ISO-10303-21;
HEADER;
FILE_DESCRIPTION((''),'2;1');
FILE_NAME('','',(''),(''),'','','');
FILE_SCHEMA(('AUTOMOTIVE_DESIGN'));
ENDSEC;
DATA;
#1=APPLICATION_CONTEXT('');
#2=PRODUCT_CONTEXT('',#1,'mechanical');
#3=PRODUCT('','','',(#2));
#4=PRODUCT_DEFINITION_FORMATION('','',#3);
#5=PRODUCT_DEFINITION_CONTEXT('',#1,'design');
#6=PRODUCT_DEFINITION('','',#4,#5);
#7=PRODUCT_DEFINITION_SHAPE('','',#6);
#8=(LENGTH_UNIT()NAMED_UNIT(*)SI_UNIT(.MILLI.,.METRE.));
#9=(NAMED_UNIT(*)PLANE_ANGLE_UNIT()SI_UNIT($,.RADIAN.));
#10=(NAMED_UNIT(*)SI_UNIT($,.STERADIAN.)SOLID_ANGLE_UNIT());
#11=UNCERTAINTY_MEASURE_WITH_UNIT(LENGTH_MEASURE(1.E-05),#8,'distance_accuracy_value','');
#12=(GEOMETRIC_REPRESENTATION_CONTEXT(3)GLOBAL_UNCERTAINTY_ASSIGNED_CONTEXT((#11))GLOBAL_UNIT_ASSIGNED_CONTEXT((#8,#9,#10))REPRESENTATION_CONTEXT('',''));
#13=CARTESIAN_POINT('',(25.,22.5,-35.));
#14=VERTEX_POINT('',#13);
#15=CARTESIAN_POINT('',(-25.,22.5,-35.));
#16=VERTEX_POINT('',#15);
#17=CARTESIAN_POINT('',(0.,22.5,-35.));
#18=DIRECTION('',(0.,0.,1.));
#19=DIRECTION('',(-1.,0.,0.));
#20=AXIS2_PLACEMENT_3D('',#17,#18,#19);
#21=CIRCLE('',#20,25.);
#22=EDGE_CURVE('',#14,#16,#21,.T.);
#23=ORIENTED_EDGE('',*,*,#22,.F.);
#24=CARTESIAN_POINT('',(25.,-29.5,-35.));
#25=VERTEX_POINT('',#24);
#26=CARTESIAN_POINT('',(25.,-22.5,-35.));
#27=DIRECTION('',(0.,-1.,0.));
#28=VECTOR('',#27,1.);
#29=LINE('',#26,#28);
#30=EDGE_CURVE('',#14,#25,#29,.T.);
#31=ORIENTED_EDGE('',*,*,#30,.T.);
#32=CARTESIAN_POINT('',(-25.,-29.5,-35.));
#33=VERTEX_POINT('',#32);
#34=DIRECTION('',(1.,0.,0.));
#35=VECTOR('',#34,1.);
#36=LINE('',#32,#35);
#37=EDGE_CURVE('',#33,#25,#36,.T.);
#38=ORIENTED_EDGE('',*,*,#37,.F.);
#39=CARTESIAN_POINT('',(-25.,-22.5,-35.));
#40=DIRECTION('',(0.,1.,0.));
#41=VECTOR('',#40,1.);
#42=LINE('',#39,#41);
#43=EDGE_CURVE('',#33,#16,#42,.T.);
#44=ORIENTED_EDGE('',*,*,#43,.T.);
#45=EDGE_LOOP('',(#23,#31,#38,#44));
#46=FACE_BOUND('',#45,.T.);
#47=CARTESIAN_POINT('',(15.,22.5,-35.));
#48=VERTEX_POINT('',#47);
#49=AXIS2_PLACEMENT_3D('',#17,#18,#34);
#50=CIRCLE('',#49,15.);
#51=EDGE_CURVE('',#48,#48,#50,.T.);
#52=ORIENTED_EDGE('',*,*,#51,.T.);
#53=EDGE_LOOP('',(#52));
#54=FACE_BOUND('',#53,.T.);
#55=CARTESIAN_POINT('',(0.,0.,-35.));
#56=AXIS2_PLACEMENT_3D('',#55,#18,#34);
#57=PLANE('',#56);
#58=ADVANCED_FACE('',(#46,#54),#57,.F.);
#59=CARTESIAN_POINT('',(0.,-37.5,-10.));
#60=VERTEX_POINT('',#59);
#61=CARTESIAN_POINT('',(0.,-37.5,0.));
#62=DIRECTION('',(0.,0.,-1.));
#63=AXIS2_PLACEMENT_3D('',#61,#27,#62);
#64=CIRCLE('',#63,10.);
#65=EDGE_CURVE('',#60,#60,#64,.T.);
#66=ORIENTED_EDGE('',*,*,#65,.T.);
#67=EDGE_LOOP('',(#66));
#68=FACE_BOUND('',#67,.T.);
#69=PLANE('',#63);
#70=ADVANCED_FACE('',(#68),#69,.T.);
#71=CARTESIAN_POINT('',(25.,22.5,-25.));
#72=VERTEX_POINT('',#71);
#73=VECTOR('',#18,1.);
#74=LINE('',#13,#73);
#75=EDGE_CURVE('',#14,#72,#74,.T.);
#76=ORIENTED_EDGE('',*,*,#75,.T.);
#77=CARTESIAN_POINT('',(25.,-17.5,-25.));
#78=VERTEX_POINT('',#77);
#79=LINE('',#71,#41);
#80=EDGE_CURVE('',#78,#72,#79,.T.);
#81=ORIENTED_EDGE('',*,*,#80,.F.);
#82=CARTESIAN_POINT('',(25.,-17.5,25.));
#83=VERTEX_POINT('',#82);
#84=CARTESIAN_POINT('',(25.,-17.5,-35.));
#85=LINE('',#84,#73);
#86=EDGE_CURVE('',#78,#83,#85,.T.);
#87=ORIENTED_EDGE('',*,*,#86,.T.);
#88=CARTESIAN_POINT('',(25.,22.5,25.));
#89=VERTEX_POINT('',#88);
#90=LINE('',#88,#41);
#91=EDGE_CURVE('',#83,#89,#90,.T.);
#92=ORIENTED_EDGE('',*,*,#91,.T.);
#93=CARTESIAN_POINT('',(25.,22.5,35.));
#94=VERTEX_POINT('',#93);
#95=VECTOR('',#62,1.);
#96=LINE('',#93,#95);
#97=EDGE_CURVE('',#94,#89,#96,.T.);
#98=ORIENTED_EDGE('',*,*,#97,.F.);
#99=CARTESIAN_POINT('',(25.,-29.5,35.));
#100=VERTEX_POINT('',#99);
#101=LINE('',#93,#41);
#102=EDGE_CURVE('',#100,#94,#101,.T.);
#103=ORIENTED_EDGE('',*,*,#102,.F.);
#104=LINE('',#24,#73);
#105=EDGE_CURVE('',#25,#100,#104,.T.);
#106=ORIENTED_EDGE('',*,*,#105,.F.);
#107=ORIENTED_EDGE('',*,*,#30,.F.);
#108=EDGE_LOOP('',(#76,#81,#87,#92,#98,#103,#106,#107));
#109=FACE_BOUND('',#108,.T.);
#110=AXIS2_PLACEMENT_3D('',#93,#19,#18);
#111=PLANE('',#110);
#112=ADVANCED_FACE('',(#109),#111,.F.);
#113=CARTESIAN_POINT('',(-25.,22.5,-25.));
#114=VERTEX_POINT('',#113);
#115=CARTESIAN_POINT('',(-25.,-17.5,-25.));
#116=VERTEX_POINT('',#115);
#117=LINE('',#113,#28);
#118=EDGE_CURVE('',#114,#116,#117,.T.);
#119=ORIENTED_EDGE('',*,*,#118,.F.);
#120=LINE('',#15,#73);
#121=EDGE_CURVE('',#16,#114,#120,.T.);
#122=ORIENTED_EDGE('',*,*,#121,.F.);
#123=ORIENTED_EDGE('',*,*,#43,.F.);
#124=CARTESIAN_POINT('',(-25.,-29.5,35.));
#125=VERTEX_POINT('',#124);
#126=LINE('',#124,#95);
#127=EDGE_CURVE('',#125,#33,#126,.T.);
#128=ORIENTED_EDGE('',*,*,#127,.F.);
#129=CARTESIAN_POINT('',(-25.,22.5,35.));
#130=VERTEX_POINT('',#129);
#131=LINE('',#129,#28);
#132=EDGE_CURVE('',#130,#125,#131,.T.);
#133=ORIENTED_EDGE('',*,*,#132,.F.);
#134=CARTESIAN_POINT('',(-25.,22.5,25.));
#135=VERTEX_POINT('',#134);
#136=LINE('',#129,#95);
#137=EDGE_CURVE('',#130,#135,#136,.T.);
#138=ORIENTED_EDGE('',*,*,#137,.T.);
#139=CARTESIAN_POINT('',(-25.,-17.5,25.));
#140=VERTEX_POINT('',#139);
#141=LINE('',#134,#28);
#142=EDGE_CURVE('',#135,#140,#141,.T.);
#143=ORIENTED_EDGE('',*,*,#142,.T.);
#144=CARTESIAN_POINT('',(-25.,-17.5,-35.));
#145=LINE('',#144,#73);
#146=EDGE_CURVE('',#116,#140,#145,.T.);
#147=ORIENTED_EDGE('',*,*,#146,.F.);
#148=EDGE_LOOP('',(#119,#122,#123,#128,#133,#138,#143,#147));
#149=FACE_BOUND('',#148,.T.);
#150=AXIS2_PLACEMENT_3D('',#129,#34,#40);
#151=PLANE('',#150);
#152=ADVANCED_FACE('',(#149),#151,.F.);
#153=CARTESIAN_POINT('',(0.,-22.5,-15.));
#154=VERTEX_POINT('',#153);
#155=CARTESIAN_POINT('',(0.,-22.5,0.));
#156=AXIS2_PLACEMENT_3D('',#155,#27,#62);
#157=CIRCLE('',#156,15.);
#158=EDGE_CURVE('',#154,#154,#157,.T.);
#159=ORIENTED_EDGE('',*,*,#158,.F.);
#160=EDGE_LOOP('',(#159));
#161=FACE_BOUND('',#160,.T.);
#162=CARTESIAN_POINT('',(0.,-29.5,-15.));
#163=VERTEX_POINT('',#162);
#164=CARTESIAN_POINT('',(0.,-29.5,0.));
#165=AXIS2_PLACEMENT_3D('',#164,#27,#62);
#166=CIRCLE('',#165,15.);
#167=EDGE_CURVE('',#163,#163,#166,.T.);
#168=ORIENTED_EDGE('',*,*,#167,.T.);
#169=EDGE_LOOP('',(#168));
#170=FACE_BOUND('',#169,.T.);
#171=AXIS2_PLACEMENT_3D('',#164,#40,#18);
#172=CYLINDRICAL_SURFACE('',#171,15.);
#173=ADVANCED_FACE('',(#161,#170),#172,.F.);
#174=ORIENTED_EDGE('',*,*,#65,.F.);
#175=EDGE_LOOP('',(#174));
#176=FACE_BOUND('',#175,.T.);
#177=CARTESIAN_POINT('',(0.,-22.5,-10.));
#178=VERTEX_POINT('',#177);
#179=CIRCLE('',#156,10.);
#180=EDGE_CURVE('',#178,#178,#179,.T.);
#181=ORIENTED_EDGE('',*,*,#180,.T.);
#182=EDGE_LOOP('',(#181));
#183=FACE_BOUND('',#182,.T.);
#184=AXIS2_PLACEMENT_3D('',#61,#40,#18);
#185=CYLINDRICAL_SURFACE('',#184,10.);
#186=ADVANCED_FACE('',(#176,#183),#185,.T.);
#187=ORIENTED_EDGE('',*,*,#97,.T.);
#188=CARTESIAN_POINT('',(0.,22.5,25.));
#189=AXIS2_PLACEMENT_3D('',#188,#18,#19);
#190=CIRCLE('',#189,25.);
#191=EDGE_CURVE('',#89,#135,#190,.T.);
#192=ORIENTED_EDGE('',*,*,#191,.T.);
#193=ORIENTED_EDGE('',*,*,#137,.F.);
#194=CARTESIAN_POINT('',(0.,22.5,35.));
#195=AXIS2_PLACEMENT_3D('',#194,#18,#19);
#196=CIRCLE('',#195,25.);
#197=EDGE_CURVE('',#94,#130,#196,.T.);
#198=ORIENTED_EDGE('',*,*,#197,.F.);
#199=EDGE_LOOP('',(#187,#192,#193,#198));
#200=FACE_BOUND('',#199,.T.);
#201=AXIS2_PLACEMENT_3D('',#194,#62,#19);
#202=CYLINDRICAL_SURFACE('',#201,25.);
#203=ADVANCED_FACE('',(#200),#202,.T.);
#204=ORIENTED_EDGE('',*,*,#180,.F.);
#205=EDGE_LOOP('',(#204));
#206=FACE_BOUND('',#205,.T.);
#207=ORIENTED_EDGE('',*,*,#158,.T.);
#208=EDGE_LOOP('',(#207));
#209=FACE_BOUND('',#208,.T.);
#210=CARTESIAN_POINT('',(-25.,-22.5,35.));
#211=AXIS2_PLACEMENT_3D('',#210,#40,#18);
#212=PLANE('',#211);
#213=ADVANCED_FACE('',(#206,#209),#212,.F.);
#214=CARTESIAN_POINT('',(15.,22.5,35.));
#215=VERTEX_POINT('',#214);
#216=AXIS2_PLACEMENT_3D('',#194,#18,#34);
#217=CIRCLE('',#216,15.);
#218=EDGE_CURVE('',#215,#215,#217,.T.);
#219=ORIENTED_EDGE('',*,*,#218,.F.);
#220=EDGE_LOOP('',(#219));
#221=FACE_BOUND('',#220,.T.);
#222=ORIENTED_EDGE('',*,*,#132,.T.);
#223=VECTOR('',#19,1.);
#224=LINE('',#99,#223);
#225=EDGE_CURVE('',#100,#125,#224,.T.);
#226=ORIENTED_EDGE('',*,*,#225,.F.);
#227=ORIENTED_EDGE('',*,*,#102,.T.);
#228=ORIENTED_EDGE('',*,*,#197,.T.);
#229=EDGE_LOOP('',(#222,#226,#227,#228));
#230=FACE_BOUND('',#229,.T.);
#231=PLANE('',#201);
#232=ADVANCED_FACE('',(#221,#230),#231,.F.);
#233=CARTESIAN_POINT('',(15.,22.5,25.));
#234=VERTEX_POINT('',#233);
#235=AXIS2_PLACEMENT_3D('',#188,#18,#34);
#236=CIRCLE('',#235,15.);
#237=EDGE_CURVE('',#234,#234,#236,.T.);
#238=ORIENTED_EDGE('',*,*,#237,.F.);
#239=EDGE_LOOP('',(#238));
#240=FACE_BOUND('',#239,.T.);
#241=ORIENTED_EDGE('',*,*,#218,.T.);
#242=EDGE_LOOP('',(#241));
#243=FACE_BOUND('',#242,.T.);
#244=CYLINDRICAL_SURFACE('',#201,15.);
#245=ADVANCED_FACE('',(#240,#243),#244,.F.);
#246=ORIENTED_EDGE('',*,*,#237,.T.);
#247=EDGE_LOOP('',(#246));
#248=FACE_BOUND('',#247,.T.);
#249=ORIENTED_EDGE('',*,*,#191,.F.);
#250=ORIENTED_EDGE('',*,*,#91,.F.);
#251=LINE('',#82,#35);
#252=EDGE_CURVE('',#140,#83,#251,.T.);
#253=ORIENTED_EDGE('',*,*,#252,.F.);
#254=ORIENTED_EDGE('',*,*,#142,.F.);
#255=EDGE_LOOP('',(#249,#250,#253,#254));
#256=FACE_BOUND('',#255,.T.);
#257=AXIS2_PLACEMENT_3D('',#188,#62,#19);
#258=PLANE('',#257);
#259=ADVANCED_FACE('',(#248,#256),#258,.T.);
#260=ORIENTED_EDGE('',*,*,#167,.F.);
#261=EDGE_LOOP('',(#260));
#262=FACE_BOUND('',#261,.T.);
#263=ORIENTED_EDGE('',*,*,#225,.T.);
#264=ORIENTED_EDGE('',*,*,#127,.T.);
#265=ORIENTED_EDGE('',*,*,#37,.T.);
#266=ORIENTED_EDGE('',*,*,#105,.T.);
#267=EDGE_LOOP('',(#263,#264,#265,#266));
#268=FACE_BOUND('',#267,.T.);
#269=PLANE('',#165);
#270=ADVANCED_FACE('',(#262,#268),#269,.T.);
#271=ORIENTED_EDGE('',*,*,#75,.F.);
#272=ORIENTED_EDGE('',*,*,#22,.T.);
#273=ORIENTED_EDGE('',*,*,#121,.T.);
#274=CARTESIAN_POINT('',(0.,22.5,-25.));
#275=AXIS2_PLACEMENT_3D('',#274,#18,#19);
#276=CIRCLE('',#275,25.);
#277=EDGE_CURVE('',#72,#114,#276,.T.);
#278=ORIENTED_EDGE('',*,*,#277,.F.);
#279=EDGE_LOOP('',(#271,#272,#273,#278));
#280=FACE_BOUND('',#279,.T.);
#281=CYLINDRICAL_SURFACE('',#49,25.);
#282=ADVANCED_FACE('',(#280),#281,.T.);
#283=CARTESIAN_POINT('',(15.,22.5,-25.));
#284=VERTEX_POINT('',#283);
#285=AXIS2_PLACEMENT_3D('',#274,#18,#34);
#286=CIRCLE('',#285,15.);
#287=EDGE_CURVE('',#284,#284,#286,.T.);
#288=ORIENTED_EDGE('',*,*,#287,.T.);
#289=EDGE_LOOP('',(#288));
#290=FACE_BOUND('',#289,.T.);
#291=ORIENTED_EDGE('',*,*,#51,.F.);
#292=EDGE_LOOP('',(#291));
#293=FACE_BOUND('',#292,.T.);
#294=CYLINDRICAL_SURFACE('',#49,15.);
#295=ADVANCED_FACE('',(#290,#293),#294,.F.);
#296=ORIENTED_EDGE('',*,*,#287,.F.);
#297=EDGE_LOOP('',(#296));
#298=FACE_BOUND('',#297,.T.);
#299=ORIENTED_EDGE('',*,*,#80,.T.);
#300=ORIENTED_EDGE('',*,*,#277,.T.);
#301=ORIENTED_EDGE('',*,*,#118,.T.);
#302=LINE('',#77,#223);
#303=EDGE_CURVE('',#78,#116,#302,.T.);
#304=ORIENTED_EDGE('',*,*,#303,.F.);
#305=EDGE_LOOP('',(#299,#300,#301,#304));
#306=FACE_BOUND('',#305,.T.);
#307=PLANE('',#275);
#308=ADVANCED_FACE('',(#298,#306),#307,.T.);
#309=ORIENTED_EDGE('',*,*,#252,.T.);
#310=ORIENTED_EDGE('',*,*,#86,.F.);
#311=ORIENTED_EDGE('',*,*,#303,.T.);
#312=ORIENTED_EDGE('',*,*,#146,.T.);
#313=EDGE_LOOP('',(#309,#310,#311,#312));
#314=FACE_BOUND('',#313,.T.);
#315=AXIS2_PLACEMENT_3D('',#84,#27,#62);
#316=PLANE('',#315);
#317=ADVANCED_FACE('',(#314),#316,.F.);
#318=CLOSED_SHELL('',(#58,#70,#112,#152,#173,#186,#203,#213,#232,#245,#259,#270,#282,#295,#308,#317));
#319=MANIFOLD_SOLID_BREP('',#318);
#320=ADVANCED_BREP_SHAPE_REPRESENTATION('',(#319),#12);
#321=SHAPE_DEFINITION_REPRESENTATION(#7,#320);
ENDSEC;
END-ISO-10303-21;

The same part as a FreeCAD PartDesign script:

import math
import FreeCAD as App
import Part
import Sketcher
Q = App.Units.Quantity


def add_polygon(sketch, points):
    """Adds a closed chain of lines whose ends are joined by coincident constraints."""
    first, n = sketch.GeometryCount, len(points)
    for a, b in zip(points, points[1:] + points[:1]):
        sketch.addGeometry(Part.LineSegment(App.Vector(*a, 0), App.Vector(*b, 0)), False)
    for i in range(n):
        sketch.addConstraint(Sketcher.Constraint("Coincident", first + i, 2, first + (i + 1) % n, 1))

doc = App.newDocument("Part")
params = doc.addObject("Spreadsheet::Sheet", "Params")
for row, (alias, value) in enumerate([
    ("sketch1_diameter", "30 mm"),
    ("sketch1_radius", "25 mm"),
    ("sketch1_height", "45 mm"),
    ("pad1_length", "10 mm"),
    ("sketch2_width", "50 mm"),
    ("sketch2_height", "5 mm"),
    ("pad2_length", "60 mm"),
    ("sketch3_diameter", "20 mm"),
    ("pad3_length", "15 mm"),
    ("sketch4_diameter", "30 mm"),
    ("sketch4_width", "50 mm"),
    ("sketch4_height", "70 mm"),
    ("pad4_length", "7 mm"),
], start=1):
    params.set(f"A{row}", alias)
    params.set(f"B{row}", "=" + value)
    params.setAlias(f"B{row}", alias)

body = doc.addObject("PartDesign::Body", "Body")

# Sketch on XY plane
sketch1 = doc.addObject("Sketcher::SketchObject", "Sketch")
body.addObject(sketch1)
sketch1.AttachmentSupport = (doc.XY_Plane, [""])
sketch1.MapMode = "FlatFace"
sketch1.AttachmentOffset = App.Placement(App.Vector(0, 0, 30), App.Rotation())
sketch1.addGeometry(Part.LineSegment(App.Vector(-25, 22, 0), App.Vector(-25, -22, 0)), False)
sketch1.addGeometry(Part.LineSegment(App.Vector(-25, -22, 0), App.Vector(25, -22, 0)), False)
sketch1.addGeometry(Part.LineSegment(App.Vector(25, -22, 0), App.Vector(25, 22, 0)), False)
sketch1.addGeometry(Part.ArcOfCircle(Part.Circle(App.Vector(0, 22, 0), App.Vector(0, 0, 1), 25), math.radians(0), math.radians(180)), False)
sketch1.addGeometry(Part.Circle(App.Vector(0, 22, 0), App.Vector(0, 0, 1), 15), False)
sketch1.addConstraint(Sketcher.Constraint("Coincident", 0, 2, 1, 1))
sketch1.addConstraint(Sketcher.Constraint("Coincident", 1, 2, 2, 1))
sketch1.addConstraint(Sketcher.Constraint("Tangent", 2, 2, 3, 1))
sketch1.addConstraint(Sketcher.Constraint("Tangent", 3, 2, 0, 1))
sketch1.addConstraint(Sketcher.Constraint("Vertical", 0))
sketch1.addConstraint(Sketcher.Constraint("Horizontal", 1))
sketch1.addConstraint(Sketcher.Constraint("Vertical", 2))
sketch1.addConstraint(Sketcher.Constraint("Coincident", 4, 3, 3, 3))
sketch1.addConstraint(Sketcher.Constraint("Symmetric", 0, 2, 2, 2, -1, 1))
sketch1.addConstraint(Sketcher.Constraint("Diameter", 4, Q("30 mm")))
sketch1.addConstraint(Sketcher.Constraint("Radius", 3, Q("25 mm")))
sketch1.addConstraint(Sketcher.Constraint("DistanceY", 0, 2, 0, 1, Q("45 mm")))
sketch1.setExpression("Constraints[9]", "Params.sketch1_diameter")
sketch1.setExpression("Constraints[10]", "Params.sketch1_radius")
sketch1.setExpression("Constraints[11]", "Params.sketch1_height")
pad1 = doc.addObject("PartDesign::Pad", "Pad")
body.addObject(pad1)
pad1.Profile = sketch1
pad1.setExpression("Length", "Params.pad1_length")
pad1.Midplane = True

# Sketch on XY plane
sketch2 = doc.addObject("Sketcher::SketchObject", "Sketch001")
body.addObject(sketch2)
sketch2.AttachmentSupport = (doc.XY_Plane, [""])
sketch2.MapMode = "FlatFace"
sketch2.AttachmentOffset = App.Placement(App.Vector(0, 0, 25), App.Rotation())
add_polygon(sketch2, [(25, -18), (25, -22), (-25, -22), (-25, -18)])  # lines 0-3
sketch2.addConstraint(Sketcher.Constraint("Vertical", 0))
sketch2.addConstraint(Sketcher.Constraint("Horizontal", 1))
sketch2.addConstraint(Sketcher.Constraint("Vertical", 2))
sketch2.addConstraint(Sketcher.Constraint("Horizontal", 3))
sketch2.addConstraint(Sketcher.Constraint("DistanceX", 1, 2, 1, 1, Q("50 mm")))
sketch2.addConstraint(Sketcher.Constraint("DistanceY", 0, 2, 0, 1, Q("5 mm")))
sketch2.addConstraint(Sketcher.Constraint("DistanceX", -1, 1, 0, 2, Q("25 mm")))
sketch2.addConstraint(Sketcher.Constraint("DistanceY", 0, 2, -1, 1, Q("22.5 mm")))
sketch2.setExpression("Constraints[8]", "Params.sketch2_width")
sketch2.setExpression("Constraints[9]", "Params.sketch2_height")
pad2 = doc.addObject("PartDesign::Pad", "Pad001")
body.addObject(pad2)
pad2.Profile = sketch2
pad2.setExpression("Length", "Params.pad2_length")
pad2.Reversed = True
doc.recompute()

mirrored = doc.addObject("PartDesign::Mirrored", "Mirrored")
body.addObject(mirrored)
mirrored.Originals = [pad1]
mirrored.MirrorPlane = (doc.XY_Plane, [""])
body.Tip = mirrored

# Sketch on XZ plane
sketch3 = doc.addObject("Sketcher::SketchObject", "Sketch002")
body.addObject(sketch3)
sketch3.AttachmentSupport = (doc.XZ_Plane, [""])
sketch3.MapMode = "FlatFace"
sketch3.AttachmentOffset = App.Placement(App.Vector(0, 0, 22.5), App.Rotation())
sketch3.addGeometry(Part.Circle(App.Vector(0, 0, 0), App.Vector(0, 0, 1), 10), False)
sketch3.addConstraint(Sketcher.Constraint("Coincident", 0, 3, -1, 1))
sketch3.addConstraint(Sketcher.Constraint("Diameter", 0, Q("20 mm")))
sketch3.setExpression("Constraints[1]", "Params.sketch3_diameter")
pad3 = doc.addObject("PartDesign::Pad", "Pad002")
body.addObject(pad3)
pad3.Profile = sketch3
pad3.setExpression("Length", "Params.pad3_length")

# Sketch on XZ plane
sketch4 = doc.addObject("Sketcher::SketchObject", "Sketch003")
body.addObject(sketch4)
sketch4.AttachmentSupport = (doc.XZ_Plane, [""])
sketch4.MapMode = "FlatFace"
sketch4.AttachmentOffset = App.Placement(App.Vector(0, 0, 22.5), App.Rotation())
add_polygon(sketch4, [(-25, 35), (-25, -35), (25, -35), (25, 35)])  # lines 0-3
sketch4.addGeometry(Part.Circle(App.Vector(0, 0, 0), App.Vector(0, 0, 1), 15), False)  # 4
sketch4.addConstraint(Sketcher.Constraint("Vertical", 0))
sketch4.addConstraint(Sketcher.Constraint("Horizontal", 1))
sketch4.addConstraint(Sketcher.Constraint("Vertical", 2))
sketch4.addConstraint(Sketcher.Constraint("Horizontal", 3))
sketch4.addConstraint(Sketcher.Constraint("Coincident", 4, 3, -1, 1))
sketch4.addConstraint(Sketcher.Constraint("Symmetric", 0, 2, 2, 2, -1, 1))
sketch4.addConstraint(Sketcher.Constraint("Diameter", 4, Q("30 mm")))
sketch4.addConstraint(Sketcher.Constraint("DistanceX", 1, 1, 1, 2, Q("50 mm")))
sketch4.addConstraint(Sketcher.Constraint("DistanceY", 0, 2, 0, 1, Q("70 mm")))
sketch4.setExpression("Constraints[10]", "Params.sketch4_diameter")
sketch4.setExpression("Constraints[11]", "Params.sketch4_width")
sketch4.setExpression("Constraints[12]", "Params.sketch4_height")
pad4 = doc.addObject("PartDesign::Pad", "Pad003")
body.addObject(pad4)
pad4.Profile = sketch4
pad4.setExpression("Length", "Params.pad4_length")

doc.recompute()
